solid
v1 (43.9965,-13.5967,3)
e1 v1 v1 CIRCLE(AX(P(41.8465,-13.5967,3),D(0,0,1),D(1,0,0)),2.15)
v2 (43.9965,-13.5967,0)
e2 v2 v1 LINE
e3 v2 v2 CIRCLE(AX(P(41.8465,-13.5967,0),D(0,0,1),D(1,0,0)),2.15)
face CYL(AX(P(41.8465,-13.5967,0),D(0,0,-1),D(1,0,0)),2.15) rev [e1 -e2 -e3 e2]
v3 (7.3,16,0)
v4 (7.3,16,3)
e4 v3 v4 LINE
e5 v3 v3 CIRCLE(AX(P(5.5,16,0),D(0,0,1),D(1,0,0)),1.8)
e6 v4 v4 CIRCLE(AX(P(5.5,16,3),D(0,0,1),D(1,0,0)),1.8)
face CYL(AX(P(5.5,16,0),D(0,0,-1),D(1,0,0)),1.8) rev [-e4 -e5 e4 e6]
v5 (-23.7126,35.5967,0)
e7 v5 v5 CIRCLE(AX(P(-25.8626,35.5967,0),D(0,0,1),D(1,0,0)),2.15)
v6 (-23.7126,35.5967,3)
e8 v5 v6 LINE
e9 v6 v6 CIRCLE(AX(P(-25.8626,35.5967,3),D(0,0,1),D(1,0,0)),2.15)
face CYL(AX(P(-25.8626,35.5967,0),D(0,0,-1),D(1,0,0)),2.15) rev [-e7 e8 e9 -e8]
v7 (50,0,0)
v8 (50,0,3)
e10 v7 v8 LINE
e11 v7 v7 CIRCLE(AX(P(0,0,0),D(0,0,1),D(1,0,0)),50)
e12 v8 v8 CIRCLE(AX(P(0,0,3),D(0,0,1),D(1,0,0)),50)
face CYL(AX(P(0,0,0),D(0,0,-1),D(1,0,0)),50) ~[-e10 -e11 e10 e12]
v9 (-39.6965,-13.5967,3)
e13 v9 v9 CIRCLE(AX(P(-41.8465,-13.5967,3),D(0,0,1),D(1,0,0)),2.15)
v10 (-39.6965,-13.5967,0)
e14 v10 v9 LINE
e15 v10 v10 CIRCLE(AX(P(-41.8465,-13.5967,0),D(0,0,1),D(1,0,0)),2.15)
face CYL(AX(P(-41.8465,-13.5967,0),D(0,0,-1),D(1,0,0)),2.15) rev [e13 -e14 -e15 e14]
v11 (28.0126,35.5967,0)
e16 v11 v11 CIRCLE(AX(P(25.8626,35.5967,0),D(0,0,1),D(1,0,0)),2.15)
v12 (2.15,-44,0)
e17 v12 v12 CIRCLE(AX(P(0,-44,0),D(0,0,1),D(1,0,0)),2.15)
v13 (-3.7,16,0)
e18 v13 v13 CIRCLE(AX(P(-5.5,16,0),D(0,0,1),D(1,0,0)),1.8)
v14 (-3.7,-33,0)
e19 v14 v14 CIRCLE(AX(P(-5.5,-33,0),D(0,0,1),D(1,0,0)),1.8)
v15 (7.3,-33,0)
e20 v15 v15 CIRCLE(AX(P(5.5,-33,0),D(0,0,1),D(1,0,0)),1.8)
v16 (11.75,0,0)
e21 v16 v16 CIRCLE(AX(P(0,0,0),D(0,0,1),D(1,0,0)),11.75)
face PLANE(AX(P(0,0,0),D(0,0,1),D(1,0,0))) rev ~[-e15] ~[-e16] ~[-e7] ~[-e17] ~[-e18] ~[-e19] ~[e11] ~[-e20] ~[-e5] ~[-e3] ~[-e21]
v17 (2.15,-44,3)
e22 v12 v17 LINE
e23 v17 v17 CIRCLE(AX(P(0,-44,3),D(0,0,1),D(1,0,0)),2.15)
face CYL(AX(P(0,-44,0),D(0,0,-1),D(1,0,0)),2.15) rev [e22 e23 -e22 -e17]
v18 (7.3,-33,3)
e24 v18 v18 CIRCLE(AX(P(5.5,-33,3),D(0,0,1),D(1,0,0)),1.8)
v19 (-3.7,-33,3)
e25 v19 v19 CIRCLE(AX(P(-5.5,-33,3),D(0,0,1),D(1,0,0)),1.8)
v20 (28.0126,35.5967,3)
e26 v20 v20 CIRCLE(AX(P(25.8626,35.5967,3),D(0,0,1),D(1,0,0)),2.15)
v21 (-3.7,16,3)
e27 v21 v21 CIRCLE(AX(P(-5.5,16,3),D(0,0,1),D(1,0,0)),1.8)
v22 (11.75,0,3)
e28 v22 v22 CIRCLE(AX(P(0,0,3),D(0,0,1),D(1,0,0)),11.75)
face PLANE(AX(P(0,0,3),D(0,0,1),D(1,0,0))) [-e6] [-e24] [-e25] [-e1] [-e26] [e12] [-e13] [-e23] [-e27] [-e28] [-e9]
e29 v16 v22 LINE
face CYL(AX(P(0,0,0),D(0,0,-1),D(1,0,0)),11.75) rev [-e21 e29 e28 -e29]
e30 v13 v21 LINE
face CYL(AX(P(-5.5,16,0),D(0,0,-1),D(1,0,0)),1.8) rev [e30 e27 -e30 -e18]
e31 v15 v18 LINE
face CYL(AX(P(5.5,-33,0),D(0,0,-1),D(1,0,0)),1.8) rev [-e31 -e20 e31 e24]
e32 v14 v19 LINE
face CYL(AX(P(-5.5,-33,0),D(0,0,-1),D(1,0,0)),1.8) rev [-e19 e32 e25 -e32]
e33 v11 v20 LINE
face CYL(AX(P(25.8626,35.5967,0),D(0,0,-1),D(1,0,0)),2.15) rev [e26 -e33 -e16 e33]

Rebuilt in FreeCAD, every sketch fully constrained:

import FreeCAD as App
import Part
import Sketcher
Q = App.Units.Quantity

doc = App.newDocument("Part")
params = doc.addObject("Spreadsheet::Sheet", "Params")
for row, (alias, value) in enumerate([
    ("sketch1_diameter", "100 mm"),
    ("sketch1_diameter2", "3.6 mm"),
    ("sketch1_diameter3", "4.3 mm"),
    ("sketch1_diameter4", "23.5 mm"),
    ("pad1_length", "3 mm"),
], start=1):
    params.set(f"A{row}", alias)
    params.set(f"B{row}", "=" + value)
    params.setAlias(f"B{row}", alias)

body = doc.addObject("PartDesign::Body", "Body")

# Sketch on XY plane
sketch1 = body.newObject("Sketcher::SketchObject", "Sketch")
sketch1.AttachmentSupport = (doc.getObject("XY_Plane"), [""])
sketch1.MapMode = "FlatFace"
sketch1.addGeometry([
    Part.Circle(App.Vector(0, 0, 0), App.Vector(0, 0, 1), 50),  # 0
    Part.Circle(App.Vector(-5.5, -33, 0), App.Vector(0, 0, 1), 1.8),  # 1
    Part.Circle(App.Vector(-41.8465, -13.5967, 0), App.Vector(0, 0, 1), 2.15),  # 2
    Part.Circle(App.Vector(0, -44, 0), App.Vector(0, 0, 1), 2.15),  # 3
    Part.Circle(App.Vector(5.5, -33, 0), App.Vector(0, 0, 1), 1.8),  # 4
    Part.Circle(App.Vector(41.8465, -13.5967, 0), App.Vector(0, 0, 1), 2.15),  # 5
    Part.Circle(App.Vector(-5.5, 16, 0), App.Vector(0, 0, 1), 1.8),  # 6
    Part.Circle(App.Vector(-25.8626, 35.5967, 0), App.Vector(0, 0, 1), 2.15),  # 7
    Part.Circle(App.Vector(0, 0, 0), App.Vector(0, 0, 1), 11.75),  # 8
    Part.Circle(App.Vector(5.5, 16, 0), App.Vector(0, 0, 1), 1.8),  # 9
    Part.Circle(App.Vector(25.8626, 35.5967, 0), App.Vector(0, 0, 1), 2.15),  # 10
], False)
sketch1.addConstraint([
    Sketcher.Constraint("Coincident", 0, 3, -1, 1),
    Sketcher.Constraint("Coincident", 8, 3, -1, 1),
    Sketcher.Constraint("Equal", 2, 3),
    Sketcher.Constraint("Equal", 1, 4),
    Sketcher.Constraint("Equal", 3, 5),
    Sketcher.Constraint("Equal", 4, 6),
    Sketcher.Constraint("Equal", 5, 7),
    Sketcher.Constraint("Equal", 6, 9),
    Sketcher.Constraint("Equal", 7, 10),
    Sketcher.Constraint("Symmetric", 1, 3, 4, 3, -2),
    Sketcher.Constraint("Symmetric", 2, 3, 5, 3, -2),
    Sketcher.Constraint("Symmetric", 6, 3, 9, 3, -2),
    Sketcher.Constraint("Symmetric", 7, 3, 10, 3, -2),
    Sketcher.Constraint("PointOnObject", 3, 3, -2),
    Sketcher.Constraint("Vertical", 1, 3, 6, 3),
    Sketcher.Constraint("Diameter", 0, Q("100 mm")),
    Sketcher.Constraint("Diameter", 1, Q("3.6 mm")),
    Sketcher.Constraint("Diameter", 2, Q("4.3 mm")),
    Sketcher.Constraint("Diameter", 8, Q("23.5 mm")),
    Sketcher.Constraint("DistanceY", 3, 3, 1, 3, Q("11 mm")),
    Sketcher.Constraint("DistanceX", 1, 3, 4, 3, Q("11 mm")),
    Sketcher.Constraint("DistanceY", 1, 3, 6, 3, Q("49 mm")),
    Sketcher.Constraint("DistanceY", 1, 3, -1, 1, Q("33 mm")),
    Sketcher.Constraint("DistanceX", 2, 3, 5, 3, Q("83.693 mm")),
    Sketcher.Constraint("DistanceX", 2, 3, 7, 3, Q("15.984 mm")),
    Sketcher.Constraint("DistanceY", 2, 3, -1, 1, Q("13.5967 mm")),
    Sketcher.Constraint("DistanceY", -1, 1, 7, 3, Q("35.5967 mm")),
])
sketch1.setExpression("Constraints[15]", "Params.sketch1_diameter")
sketch1.setExpression("Constraints[16]", "Params.sketch1_diameter2")
sketch1.setExpression("Constraints[17]", "Params.sketch1_diameter3")
sketch1.setExpression("Constraints[18]", "Params.sketch1_diameter4")
pad1 = body.newObject("PartDesign::Pad", "Pad")
pad1.Profile = sketch1
pad1.setExpression("Length", "Params.pad1_length")

doc.recompute()
